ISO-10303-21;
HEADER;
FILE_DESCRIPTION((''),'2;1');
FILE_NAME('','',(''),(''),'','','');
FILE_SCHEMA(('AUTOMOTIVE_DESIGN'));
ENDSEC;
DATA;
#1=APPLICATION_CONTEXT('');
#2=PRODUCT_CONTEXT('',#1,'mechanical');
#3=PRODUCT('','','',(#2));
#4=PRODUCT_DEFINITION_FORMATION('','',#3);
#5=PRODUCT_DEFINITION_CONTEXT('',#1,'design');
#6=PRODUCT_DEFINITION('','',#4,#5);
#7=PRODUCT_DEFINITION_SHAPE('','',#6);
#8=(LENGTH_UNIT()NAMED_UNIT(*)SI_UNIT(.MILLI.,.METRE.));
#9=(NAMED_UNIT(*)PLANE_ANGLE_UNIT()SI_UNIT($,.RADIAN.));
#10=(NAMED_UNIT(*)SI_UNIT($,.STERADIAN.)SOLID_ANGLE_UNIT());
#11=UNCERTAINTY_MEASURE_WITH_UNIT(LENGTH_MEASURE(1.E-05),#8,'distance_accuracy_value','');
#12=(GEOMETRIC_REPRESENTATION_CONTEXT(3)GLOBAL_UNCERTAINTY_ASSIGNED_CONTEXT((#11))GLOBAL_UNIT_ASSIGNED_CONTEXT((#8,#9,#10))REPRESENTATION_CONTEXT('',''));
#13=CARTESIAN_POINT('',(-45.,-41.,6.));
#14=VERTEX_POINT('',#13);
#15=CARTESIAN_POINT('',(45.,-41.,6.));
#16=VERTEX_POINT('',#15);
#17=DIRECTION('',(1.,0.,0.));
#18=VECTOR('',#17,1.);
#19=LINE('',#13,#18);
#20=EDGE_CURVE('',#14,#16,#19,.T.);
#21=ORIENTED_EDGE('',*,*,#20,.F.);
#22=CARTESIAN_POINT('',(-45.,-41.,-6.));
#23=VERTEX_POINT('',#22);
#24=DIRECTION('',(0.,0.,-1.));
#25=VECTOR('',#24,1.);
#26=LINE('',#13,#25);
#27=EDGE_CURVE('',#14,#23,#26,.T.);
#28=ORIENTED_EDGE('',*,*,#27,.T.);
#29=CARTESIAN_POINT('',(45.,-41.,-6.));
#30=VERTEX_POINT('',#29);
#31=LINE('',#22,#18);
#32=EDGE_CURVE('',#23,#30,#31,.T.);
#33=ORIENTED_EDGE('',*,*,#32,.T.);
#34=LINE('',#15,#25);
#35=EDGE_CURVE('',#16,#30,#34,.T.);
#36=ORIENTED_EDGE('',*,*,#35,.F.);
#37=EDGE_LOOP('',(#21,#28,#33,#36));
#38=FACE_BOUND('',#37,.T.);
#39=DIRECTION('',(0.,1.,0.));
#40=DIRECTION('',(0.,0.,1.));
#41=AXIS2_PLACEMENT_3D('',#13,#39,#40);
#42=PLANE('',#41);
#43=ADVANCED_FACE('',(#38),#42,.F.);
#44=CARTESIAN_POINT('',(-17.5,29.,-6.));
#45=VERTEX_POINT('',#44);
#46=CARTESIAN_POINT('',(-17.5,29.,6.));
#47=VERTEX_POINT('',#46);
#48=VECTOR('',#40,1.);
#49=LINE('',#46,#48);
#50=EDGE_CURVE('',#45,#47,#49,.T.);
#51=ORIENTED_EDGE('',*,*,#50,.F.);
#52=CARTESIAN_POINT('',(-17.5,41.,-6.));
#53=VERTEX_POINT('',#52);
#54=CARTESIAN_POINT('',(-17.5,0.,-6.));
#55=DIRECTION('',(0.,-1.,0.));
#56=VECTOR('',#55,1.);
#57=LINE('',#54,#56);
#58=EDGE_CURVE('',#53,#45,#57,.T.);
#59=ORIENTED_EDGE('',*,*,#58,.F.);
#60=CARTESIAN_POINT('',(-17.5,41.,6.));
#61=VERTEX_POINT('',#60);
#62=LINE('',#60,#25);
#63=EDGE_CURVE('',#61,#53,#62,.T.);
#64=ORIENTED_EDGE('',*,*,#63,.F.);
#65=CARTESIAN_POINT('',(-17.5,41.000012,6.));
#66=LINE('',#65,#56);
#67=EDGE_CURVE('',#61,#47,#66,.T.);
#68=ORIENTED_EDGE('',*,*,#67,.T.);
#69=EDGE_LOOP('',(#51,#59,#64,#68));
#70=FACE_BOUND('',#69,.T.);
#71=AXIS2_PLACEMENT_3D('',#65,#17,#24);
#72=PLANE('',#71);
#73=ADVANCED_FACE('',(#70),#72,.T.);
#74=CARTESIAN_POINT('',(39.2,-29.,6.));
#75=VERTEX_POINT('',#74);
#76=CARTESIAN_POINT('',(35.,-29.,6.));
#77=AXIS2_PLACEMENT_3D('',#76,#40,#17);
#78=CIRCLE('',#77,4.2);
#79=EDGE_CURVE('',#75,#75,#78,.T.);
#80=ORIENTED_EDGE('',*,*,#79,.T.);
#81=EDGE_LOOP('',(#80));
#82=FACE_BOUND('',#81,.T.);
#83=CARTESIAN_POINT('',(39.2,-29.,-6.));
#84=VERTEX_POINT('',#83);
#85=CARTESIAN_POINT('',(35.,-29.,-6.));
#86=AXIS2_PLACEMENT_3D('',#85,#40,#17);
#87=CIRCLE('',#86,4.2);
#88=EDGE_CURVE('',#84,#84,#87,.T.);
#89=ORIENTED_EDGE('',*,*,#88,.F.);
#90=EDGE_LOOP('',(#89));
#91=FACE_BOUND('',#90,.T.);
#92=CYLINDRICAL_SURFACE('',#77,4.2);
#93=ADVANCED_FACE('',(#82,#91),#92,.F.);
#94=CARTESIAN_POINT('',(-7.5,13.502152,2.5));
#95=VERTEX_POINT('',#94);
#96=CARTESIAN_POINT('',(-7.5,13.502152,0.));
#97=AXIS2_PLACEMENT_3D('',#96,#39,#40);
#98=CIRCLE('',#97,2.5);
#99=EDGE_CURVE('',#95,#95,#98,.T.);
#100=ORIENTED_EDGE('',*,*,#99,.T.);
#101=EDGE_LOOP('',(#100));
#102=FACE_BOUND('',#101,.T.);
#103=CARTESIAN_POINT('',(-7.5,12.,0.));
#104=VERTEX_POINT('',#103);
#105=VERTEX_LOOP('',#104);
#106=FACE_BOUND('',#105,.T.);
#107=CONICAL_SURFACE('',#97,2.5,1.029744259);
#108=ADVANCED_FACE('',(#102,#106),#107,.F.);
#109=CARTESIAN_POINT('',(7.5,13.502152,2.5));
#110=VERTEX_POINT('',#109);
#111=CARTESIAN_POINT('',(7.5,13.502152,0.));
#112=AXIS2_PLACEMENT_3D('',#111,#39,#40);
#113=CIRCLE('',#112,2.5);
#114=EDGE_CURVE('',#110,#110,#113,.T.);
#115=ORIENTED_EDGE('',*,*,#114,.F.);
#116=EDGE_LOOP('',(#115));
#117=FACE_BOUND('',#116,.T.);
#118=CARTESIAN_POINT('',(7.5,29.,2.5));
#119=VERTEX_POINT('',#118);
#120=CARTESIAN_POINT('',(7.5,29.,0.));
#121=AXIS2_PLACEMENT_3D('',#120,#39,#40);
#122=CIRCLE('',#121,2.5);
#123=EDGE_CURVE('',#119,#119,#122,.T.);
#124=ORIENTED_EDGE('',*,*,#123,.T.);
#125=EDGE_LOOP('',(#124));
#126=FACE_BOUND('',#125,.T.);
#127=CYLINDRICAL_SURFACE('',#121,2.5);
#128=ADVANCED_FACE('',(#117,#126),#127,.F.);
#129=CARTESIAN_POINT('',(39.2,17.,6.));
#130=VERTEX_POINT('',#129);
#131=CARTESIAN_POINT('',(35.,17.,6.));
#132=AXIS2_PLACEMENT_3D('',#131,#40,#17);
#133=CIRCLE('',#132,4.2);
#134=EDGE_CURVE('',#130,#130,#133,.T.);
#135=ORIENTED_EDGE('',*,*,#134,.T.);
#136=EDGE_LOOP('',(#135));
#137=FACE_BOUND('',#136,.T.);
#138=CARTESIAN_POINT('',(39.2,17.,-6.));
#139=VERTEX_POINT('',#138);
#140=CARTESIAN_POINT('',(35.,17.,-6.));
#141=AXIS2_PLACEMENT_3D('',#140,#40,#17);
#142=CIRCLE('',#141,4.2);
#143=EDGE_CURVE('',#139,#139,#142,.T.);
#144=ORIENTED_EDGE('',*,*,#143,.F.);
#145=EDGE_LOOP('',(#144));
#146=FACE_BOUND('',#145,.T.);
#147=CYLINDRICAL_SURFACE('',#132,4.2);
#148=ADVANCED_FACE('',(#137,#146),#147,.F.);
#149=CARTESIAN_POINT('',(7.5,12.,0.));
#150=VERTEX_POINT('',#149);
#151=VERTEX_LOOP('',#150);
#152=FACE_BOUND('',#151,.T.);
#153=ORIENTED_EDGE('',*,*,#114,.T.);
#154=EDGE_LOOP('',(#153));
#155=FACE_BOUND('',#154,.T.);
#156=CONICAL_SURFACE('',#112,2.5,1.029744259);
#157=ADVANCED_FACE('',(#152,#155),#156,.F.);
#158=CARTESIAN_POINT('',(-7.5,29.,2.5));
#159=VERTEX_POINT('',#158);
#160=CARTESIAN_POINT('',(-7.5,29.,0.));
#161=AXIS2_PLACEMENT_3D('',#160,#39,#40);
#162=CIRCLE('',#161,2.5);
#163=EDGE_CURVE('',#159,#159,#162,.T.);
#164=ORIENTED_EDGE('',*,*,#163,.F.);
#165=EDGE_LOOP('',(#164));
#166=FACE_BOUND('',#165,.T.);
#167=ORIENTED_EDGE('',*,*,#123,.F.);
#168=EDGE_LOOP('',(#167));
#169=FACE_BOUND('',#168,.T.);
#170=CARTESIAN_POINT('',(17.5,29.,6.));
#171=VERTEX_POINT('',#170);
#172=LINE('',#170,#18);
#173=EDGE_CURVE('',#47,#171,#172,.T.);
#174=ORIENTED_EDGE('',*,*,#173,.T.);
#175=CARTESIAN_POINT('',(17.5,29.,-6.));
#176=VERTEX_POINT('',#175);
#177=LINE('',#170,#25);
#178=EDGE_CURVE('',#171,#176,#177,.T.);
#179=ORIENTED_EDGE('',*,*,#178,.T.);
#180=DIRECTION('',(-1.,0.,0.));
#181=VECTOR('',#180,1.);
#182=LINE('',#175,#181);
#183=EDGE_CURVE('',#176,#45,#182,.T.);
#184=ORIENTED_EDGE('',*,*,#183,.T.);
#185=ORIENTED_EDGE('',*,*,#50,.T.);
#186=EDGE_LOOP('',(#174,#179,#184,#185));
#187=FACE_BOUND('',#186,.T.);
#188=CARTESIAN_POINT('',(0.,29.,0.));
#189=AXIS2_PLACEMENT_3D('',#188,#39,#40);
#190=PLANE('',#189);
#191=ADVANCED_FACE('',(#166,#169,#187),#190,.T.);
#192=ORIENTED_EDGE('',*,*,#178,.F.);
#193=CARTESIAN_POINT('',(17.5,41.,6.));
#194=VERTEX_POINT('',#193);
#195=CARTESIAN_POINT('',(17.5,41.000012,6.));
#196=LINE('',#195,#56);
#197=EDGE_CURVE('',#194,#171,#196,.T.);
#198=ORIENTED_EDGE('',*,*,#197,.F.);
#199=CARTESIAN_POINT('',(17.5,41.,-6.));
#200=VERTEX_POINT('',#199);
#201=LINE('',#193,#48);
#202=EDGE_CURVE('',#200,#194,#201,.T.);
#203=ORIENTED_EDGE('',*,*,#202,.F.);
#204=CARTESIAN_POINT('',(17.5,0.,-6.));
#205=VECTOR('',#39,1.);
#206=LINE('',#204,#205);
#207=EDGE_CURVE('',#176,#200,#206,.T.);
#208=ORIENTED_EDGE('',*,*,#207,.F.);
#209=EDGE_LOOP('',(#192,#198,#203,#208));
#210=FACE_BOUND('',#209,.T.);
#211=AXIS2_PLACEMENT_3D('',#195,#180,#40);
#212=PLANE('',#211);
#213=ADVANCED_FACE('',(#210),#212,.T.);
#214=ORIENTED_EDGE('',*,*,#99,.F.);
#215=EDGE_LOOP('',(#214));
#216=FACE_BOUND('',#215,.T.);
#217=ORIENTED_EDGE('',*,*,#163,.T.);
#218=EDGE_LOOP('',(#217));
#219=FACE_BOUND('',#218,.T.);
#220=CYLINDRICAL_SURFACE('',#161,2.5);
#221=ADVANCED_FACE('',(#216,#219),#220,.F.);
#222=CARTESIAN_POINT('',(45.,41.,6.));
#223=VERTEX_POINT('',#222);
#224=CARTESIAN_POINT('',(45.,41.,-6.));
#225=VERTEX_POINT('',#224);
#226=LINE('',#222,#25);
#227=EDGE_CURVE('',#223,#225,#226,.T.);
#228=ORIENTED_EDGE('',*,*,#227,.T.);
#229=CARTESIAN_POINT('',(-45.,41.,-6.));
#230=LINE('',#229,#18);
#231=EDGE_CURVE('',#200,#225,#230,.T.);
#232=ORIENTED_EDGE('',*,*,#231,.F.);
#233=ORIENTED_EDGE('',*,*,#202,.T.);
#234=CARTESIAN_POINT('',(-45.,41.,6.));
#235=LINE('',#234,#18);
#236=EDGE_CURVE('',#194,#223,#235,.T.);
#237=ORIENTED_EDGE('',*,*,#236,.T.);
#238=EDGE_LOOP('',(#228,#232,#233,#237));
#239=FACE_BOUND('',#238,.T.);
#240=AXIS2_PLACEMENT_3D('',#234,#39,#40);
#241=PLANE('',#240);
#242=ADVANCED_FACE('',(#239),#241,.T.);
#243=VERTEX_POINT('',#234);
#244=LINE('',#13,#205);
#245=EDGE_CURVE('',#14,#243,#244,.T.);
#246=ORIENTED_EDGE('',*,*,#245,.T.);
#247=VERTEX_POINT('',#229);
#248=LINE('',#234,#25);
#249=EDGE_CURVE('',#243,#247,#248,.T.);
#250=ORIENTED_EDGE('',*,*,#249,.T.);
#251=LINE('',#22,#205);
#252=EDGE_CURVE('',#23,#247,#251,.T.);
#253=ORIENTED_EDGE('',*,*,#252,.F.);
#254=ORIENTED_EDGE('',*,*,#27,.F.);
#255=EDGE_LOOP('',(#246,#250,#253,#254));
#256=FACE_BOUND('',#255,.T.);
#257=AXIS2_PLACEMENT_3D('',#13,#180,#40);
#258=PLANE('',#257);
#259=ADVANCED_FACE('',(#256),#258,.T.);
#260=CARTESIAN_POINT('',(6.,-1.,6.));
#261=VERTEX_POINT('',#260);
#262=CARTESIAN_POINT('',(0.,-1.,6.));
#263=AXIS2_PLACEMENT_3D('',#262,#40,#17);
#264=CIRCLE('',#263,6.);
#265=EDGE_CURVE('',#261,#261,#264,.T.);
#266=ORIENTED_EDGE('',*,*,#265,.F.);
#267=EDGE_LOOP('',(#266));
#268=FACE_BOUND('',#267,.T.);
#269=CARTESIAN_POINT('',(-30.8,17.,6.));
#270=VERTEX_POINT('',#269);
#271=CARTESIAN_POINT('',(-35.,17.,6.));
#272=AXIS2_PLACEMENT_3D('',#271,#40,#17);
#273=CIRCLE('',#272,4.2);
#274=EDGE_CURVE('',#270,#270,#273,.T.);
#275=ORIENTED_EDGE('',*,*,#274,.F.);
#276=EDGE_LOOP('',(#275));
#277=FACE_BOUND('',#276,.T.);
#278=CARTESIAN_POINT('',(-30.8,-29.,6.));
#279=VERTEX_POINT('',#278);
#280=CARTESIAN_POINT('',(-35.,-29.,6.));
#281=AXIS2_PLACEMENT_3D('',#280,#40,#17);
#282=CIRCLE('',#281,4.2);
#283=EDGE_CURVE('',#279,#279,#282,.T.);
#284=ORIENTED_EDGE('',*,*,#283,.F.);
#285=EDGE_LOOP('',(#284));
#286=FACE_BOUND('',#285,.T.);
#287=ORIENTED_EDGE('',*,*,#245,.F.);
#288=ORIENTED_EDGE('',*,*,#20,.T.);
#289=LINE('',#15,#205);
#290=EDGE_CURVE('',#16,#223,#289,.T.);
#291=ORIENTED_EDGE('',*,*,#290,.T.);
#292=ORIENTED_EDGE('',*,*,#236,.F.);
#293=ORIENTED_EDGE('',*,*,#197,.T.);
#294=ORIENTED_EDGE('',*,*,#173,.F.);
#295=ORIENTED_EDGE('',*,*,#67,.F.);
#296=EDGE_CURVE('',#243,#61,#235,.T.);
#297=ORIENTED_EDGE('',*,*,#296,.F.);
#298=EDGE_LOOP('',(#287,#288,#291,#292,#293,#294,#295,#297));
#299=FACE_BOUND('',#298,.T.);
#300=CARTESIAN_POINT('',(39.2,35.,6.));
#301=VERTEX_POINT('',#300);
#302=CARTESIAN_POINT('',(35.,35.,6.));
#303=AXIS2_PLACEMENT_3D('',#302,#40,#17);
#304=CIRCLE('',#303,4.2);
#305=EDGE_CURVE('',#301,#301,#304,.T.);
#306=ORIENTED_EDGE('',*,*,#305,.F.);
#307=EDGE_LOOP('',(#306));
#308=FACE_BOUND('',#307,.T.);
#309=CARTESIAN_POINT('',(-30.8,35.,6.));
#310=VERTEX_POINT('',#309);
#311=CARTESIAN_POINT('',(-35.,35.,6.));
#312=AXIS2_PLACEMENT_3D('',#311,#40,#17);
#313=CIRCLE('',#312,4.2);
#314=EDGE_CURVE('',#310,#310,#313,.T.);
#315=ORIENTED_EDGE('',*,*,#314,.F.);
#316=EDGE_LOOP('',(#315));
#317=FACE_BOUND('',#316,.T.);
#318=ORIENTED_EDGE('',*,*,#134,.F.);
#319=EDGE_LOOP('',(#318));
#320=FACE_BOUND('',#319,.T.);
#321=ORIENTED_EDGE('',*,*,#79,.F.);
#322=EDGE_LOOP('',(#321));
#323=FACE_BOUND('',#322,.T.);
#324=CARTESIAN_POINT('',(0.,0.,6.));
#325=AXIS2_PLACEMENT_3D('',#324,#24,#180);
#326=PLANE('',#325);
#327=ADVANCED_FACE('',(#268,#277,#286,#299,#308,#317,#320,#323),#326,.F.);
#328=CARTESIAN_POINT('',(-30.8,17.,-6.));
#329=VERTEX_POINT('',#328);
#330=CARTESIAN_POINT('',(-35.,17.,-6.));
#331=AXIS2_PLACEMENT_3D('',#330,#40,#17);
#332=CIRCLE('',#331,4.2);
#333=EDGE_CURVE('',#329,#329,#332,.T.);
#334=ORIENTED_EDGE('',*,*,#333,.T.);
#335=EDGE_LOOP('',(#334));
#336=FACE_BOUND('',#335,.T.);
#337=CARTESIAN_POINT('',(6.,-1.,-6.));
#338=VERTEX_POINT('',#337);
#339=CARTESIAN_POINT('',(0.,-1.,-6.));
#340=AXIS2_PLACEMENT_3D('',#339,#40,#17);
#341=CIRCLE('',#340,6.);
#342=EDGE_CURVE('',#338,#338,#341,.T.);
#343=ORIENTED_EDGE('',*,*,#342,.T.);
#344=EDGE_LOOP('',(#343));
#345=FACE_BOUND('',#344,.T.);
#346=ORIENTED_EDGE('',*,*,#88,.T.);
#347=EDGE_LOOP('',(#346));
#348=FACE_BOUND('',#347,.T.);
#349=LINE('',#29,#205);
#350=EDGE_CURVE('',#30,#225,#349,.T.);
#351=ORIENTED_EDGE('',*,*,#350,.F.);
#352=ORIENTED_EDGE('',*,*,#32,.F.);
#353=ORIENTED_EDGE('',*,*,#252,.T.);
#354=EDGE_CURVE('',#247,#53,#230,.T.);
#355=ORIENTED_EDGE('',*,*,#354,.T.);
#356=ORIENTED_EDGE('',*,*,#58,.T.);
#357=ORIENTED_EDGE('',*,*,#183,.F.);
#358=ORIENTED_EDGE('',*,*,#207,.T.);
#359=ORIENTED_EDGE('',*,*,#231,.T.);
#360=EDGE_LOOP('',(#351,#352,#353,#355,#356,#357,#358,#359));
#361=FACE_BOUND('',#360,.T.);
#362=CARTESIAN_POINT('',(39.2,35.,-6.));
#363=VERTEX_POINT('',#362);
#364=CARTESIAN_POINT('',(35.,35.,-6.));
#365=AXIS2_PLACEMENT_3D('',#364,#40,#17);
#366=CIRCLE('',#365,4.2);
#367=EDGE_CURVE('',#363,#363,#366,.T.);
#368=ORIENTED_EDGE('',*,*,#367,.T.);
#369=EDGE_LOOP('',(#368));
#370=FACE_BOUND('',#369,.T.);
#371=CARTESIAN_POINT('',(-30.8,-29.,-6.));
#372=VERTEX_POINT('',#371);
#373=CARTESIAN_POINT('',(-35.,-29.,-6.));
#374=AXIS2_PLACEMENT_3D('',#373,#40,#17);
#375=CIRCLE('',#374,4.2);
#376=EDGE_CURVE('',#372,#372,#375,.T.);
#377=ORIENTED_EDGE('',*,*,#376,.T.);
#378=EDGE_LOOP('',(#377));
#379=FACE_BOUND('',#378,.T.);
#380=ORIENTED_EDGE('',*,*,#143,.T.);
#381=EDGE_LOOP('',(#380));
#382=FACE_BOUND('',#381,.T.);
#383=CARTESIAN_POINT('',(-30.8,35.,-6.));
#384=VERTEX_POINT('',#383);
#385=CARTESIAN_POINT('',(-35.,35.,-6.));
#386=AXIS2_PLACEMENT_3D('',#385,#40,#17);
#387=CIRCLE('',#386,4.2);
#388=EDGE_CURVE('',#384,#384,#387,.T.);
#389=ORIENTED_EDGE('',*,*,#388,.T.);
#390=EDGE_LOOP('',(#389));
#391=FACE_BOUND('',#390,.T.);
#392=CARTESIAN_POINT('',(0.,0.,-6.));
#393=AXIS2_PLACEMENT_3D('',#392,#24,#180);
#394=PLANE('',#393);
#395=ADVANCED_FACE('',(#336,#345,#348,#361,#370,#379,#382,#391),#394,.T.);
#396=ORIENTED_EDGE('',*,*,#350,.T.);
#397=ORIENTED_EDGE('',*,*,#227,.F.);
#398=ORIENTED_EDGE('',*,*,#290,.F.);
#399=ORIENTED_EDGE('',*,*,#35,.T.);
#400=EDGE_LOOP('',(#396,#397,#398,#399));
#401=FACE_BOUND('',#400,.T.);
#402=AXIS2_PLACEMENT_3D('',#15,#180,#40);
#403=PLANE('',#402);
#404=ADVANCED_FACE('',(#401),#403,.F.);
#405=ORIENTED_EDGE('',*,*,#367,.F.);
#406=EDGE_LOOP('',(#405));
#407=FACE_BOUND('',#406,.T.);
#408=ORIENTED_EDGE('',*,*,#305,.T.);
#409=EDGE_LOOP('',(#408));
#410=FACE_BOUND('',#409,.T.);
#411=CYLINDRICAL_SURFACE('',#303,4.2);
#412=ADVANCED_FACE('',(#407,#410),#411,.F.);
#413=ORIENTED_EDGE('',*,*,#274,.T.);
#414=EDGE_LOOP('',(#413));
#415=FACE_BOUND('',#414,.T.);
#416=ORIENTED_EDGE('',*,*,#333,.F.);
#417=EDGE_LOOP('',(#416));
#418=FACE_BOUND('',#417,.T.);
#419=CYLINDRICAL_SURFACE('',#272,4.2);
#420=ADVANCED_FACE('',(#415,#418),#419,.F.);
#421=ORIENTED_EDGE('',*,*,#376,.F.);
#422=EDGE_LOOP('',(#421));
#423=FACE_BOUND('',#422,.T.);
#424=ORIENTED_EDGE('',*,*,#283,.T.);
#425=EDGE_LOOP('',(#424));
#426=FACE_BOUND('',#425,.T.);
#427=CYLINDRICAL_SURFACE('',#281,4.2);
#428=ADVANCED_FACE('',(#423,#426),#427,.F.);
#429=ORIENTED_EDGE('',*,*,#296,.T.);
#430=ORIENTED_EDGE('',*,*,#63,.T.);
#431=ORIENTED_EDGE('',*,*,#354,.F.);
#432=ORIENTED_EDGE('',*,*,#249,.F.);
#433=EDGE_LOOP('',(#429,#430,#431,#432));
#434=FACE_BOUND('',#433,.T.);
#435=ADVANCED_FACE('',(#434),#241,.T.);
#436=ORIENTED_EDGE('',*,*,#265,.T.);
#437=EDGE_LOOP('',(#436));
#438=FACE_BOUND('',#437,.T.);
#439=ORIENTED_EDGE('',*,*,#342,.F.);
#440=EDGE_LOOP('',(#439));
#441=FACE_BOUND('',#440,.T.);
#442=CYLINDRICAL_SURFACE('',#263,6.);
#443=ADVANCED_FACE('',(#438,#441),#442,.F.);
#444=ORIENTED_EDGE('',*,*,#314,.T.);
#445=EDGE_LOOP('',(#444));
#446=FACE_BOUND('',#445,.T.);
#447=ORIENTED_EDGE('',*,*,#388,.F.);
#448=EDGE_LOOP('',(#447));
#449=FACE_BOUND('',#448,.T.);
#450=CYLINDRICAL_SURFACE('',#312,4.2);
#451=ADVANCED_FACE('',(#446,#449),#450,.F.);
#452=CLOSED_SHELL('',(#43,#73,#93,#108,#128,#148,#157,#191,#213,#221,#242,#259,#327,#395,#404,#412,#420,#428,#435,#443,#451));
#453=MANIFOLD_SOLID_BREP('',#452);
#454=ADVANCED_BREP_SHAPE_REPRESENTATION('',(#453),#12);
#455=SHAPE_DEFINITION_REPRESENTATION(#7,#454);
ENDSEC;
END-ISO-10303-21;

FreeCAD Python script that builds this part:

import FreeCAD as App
import Part
import Sketcher

V = App.Vector


def add_polygon(sketch, points):
    """Adds a closed chain of lines whose ends are joined by coincident constraints."""
    first, n = sketch.GeometryCount, len(points)
    for a, b in zip(points, points[1:] + points[:1]):
        sketch.addGeometry(Part.LineSegment(App.Vector(*a, 0), App.Vector(*b, 0)), False)
    for i in range(n):
        sketch.addConstraint(Sketcher.Constraint("Coincident", first + i, 2, first + (i + 1) % n, 1))

doc = App.newDocument("Part")
body = doc.addObject("PartDesign::Body", "Body")

# Sketch on XY plane
sketch1 = body.newObject("Sketcher::SketchObject", "Sketch")
sketch1.AttachmentSupport = (doc.getObject("XY_Plane"), [""])
sketch1.MapMode = "FlatFace"
add_polygon(sketch1, [(-45, 41), (-45, -41), (45, -41), (45, 41)])  # lines 0-3
sketch1.addConstraint([
    Sketcher.Constraint("Vertical", 0),
    Sketcher.Constraint("Horizontal", 1),
    Sketcher.Constraint("Vertical", 2),
    Sketcher.Constraint("Horizontal", 3),
    Sketcher.Constraint("Symmetric", 0, 2, 2, 2, -1, 1),
    Sketcher.Constraint("DistanceX", 1, 1, 1, 2, 90.0),
    Sketcher.Constraint("DistanceY", 0, 2, 0, 1, 82.0),
])
pad1 = body.newObject("PartDesign::Pad", "Pad")
pad1.Profile = sketch1
pad1.Length = 12
pad1.Midplane = True

# Sketch on XY plane
sketch2 = body.newObject("Sketcher::SketchObject", "Sketch001")
sketch2.AttachmentSupport = (doc.getObject("XY_Plane"), [""])
sketch2.MapMode = "FlatFace"
sketch2.AttachmentOffset = App.Placement(V(0, 0, 6), App.Rotation())
sketch2.addGeometry([
    Part.Circle(V(-35, 17, 0), V(0, 0, 1), 4.2),  # 0
    Part.Circle(V(35, 17, 0), V(0, 0, 1), 4.2),  # 1
    Part.Circle(V(35, -29, 0), V(0, 0, 1), 4.2),  # 2
    Part.Circle(V(-35, -29, 0), V(0, 0, 1), 4.2),  # 3
    Part.Circle(V(-35, 35, 0), V(0, 0, 1), 4.2),  # 4
    Part.Circle(V(35, 35, 0), V(0, 0, 1), 4.2),  # 5
], False)
sketch2.addConstraint([
    Sketcher.Constraint("Equal", 0, 1),
    Sketcher.Constraint("Equal", 1, 2),
    Sketcher.Constraint("Equal", 2, 3),
    Sketcher.Constraint("Equal", 3, 4),
    Sketcher.Constraint("Equal", 4, 5),
    Sketcher.Constraint("Symmetric", 0, 3, 1, 3, -2),
    Sketcher.Constraint("Symmetric", 2, 3, 3, 3, -2),
    Sketcher.Constraint("Symmetric", 4, 3, 5, 3, -2),
    Sketcher.Constraint("Vertical", 1, 3, 2, 3),
    Sketcher.Constraint("Vertical", 3, 3, 4, 3),
    Sketcher.Constraint("Diameter", 0, 8.4),
    Sketcher.Constraint("DistanceX", 0, 3, -1, 1, 35.0),
    Sketcher.Constraint("DistanceY", -1, 1, 0, 3, 17.0),
    Sketcher.Constraint("DistanceY", 2, 3, -1, 1, 29.0),
    Sketcher.Constraint("DistanceY", -1, 1, 4, 3, 35.0),
])
doc.recompute()
hole = body.newObject("PartDesign::Hole", "Hole")
hole.Profile = sketch2
hole.ThreadType = "None"
hole.Diameter = 8.4
hole.DepthType = "ThroughAll"

# Sketch on XZ plane
sketch3 = body.newObject("Sketcher::SketchObject", "Sketch002")
sketch3.AttachmentSupport = (doc.getObject("XZ_Plane"), [""])
sketch3.MapMode = "FlatFace"
sketch3.AttachmentOffset = App.Placement(V(0, 0, -41), App.Rotation())
add_polygon(sketch3, [(-17.5, -6), (-17.5, 6), (17.5, 6), (17.5, -6)])  # lines 0-3
sketch3.addConstraint([
    Sketcher.Constraint("Vertical", 0),
    Sketcher.Constraint("Horizontal", 1),
    Sketcher.Constraint("Vertical", 2),
    Sketcher.Constraint("Horizontal", 3),
    Sketcher.Constraint("Symmetric", 0, 2, 2, 2, -1, 1),
    Sketcher.Constraint("DistanceX", 1, 1, 1, 2, 35.0),
    Sketcher.Constraint("DistanceY", 0, 1, 0, 2, 12.0),
])
pocket1 = body.newObject("PartDesign::Pocket", "Pocket")
pocket1.Profile = sketch3
pocket1.Type = "TwoLengths"
pocket1.Length = 94.728331
pocket1.Length2 = 12

# Sketch on XY plane
sketch4 = body.newObject("Sketcher::SketchObject", "Sketch003")
sketch4.AttachmentSupport = (doc.getObject("XY_Plane"), [""])
sketch4.MapMode = "FlatFace"
sketch4.AttachmentOffset = App.Placement(V(0, 0, 6), App.Rotation())
sketch4.addGeometry(Part.Circle(V(0, -1, 0), V(0, 0, 1), 6), False)
sketch4.addConstraint([
    Sketcher.Constraint("PointOnObject", 0, 3, -2),
    Sketcher.Constraint("Diameter", 0, 12.0),
    Sketcher.Constraint("DistanceY", 0, 3, -1, 1, 1.0),
])
doc.recompute()
hole2 = body.newObject("PartDesign::Hole", "Hole001")
hole2.Profile = sketch4
hole2.ThreadType = "None"
hole2.Diameter = 12
hole2.DepthType = "ThroughAll"

# Sketch on XZ plane
sketch5 = body.newObject("Sketcher::SketchObject", "Sketch004")
sketch5.AttachmentSupport = (doc.getObject("XZ_Plane"), [""])
sketch5.MapMode = "FlatFace"
sketch5.AttachmentOffset = App.Placement(V(0, 0, -29), App.Rotation())
sketch5.addGeometry([
    Part.Circle(V(-7.5, 0, 0), V(0, 0, 1), 2.5),
    Part.Circle(V(7.5, 0, 0), V(0, 0, 1), 2.5),
], False)
sketch5.addConstraint([
    Sketcher.Constraint("Equal", 0, 1),
    Sketcher.Constraint("Symmetric", 0, 3, 1, 3, -1, 1),
    Sketcher.Constraint("PointOnObject", 0, 3, -1),
    Sketcher.Constraint("Diameter", 0, 5.0),
    Sketcher.Constraint("DistanceX", 0, 3, 1, 3, 15.0),
])
doc.recompute()
hole3 = body.newObject("PartDesign::Hole", "Hole002")
hole3.Profile = sketch5
hole3.ThreadType = "None"
hole3.Diameter = 5
hole3.DepthType = "Dimension"
hole3.Depth = 15.497848
hole3.DrillPoint = "Angled"
hole3.DrillPointAngle = 118
hole3.Reversed = True

doc.recompute()
